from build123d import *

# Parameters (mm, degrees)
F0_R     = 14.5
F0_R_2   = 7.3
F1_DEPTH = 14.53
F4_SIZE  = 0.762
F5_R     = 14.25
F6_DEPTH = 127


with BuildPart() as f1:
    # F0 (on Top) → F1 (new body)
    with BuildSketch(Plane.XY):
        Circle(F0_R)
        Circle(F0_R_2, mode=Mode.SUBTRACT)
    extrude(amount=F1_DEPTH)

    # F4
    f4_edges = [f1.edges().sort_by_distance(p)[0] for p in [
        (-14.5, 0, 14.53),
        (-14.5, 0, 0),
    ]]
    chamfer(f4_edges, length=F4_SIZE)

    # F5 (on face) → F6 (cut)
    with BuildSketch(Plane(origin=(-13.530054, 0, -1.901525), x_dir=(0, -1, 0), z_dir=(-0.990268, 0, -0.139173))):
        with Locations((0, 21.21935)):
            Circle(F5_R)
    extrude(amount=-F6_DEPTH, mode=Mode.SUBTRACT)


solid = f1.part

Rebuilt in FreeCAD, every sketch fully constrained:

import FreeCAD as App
import Part
import Sketcher
from FreeCAD import Vector


def edges_at(feature, points):
    """Names of the edges that pass closest to the given points."""
    edges = feature.Shape.Edges
    near = lambda p: min(range(len(edges)), key=lambda i: edges[i].distToShape(Part.Vertex(*p))[0])
    return sorted({f"Edge{near(p) + 1}" for p in points})

doc = App.newDocument("Part")
body = doc.addObject("PartDesign::Body", "Body")

# Sketch on XY plane
sketch1 = doc.addObject("Sketcher::SketchObject", "Sketch")
body.addObject(sketch1)
sketch1.AttachmentSupport = (doc.XY_Plane, [""])
sketch1.MapMode = "FlatFace"
sketch1.addGeometry(Part.Circle(Vector(0, 0, 0), Vector(0, 0, 1), 14.5), False)
sketch1.addGeometry(Part.Circle(Vector(0, 0, 0), Vector(0, 0, 1), 7.3), False)
sketch1.addConstraint(Sketcher.Constraint("Coincident", 0, 3, -1, 1))
sketch1.addConstraint(Sketcher.Constraint("Coincident", 1, 3, -1, 1))
sketch1.addConstraint(Sketcher.Constraint("Diameter", 0, 29.0))
sketch1.addConstraint(Sketcher.Constraint("Diameter", 1, 14.6))
pad1 = doc.addObject("PartDesign::Pad", "Pad")
body.addObject(pad1)
pad1.Profile = sketch1
pad1.Length = 14.53
doc.recompute()

chamfer = doc.addObject("PartDesign::Chamfer", "Chamfer")
body.addObject(chamfer)
chamfer.Base = (pad1, edges_at(pad1, [(-14.5, 0, 14.53), (-14.5, 0, 0)]))
chamfer.Size = 0.762

# Sketch on an angled plane
sketch2 = doc.addObject("Sketcher::SketchObject", "Sketch001")
body.addObject(sketch2)
sketch2.Placement = App.Placement(Vector(-13.530054, 0, -1.901525), App.Rotation(Vector(0, -1, 0), Vector(-0.139173011, 0, 0.990268081), Vector(-0.990268081, 0, -0.139173011), "ZXY"))
sketch2.addGeometry(Part.Circle(Vector(0, 21.21935, 0), Vector(0, 0, 1), 14.25), False)
sketch2.addConstraint(Sketcher.Constraint("PointOnObject", 0, 3, -2))
sketch2.addConstraint(Sketcher.Constraint("Diameter", 0, 28.5))
sketch2.addConstraint(Sketcher.Constraint("DistanceY", -1, 1, 0, 3, 21.21935))
pocket1 = doc.addObject("PartDesign::Pocket", "Pocket")
body.addObject(pocket1)
pocket1.Profile = sketch2
pocket1.Length = 127

doc.recompute()
